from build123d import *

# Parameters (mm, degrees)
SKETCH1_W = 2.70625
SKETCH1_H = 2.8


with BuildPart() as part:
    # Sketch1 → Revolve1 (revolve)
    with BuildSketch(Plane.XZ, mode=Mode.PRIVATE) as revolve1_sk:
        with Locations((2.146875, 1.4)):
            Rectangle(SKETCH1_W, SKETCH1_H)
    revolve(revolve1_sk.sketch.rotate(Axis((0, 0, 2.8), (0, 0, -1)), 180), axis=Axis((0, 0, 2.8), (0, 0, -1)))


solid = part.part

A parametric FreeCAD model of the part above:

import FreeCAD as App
import Part
import Sketcher

V = App.Vector
Q = App.Units.Quantity


def add_polygon(sketch, points):
    """Adds a closed chain of lines whose ends are joined by coincident constraints."""
    first, n = sketch.GeometryCount, len(points)
    for a, b in zip(points, points[1:] + points[:1]):
        sketch.addGeometry(Part.LineSegment(App.Vector(*a, 0), App.Vector(*b, 0)), False)
    for i in range(n):
        sketch.addConstraint(Sketcher.Constraint("Coincident", first + i, 2, first + (i + 1) % n, 1))

doc = App.newDocument("Part")
body = doc.addObject("PartDesign::Body", "Body")

# Sketch on XZ plane
sketch1 = doc.addObject("Sketcher::SketchObject", "Sketch")
body.addObject(sketch1)
sketch1.AttachmentSupport = (doc.XZ_Plane, [""])
sketch1.MapMode = "FlatFace"
add_polygon(sketch1, [(0.8, 2.8), (0.8, 0), (3.5, 0), (3.5, 2.8)])  # lines 0-3
sketch1.addConstraint(Sketcher.Constraint("Vertical", 0))
sketch1.addConstraint(Sketcher.Constraint("Horizontal", 1))
sketch1.addConstraint(Sketcher.Constraint("Vertical", 2))
sketch1.addConstraint(Sketcher.Constraint("Horizontal", 3))
sketch1.addConstraint(Sketcher.Constraint("PointOnObject", 0, 2, -1))
sketch1.addConstraint(Sketcher.Constraint("DistanceY", 0, 2, 0, 1, Q("2.8 mm")))
sketch1.addConstraint(Sketcher.Constraint("DistanceX", -1, 1, 1, 2, Q("3.5 mm")))
sketch1.addConstraint(Sketcher.Constraint("DistanceX", 1, 1, 1, 2, Q("2.70625 mm")))
revolution = doc.addObject("PartDesign::Revolution", "Revolution")
body.addObject(revolution)
revolution.Profile = sketch1
revolution.ReferenceAxis = (sketch1, ["V_Axis"])
revolution.Angle = 360

doc.recompute()
